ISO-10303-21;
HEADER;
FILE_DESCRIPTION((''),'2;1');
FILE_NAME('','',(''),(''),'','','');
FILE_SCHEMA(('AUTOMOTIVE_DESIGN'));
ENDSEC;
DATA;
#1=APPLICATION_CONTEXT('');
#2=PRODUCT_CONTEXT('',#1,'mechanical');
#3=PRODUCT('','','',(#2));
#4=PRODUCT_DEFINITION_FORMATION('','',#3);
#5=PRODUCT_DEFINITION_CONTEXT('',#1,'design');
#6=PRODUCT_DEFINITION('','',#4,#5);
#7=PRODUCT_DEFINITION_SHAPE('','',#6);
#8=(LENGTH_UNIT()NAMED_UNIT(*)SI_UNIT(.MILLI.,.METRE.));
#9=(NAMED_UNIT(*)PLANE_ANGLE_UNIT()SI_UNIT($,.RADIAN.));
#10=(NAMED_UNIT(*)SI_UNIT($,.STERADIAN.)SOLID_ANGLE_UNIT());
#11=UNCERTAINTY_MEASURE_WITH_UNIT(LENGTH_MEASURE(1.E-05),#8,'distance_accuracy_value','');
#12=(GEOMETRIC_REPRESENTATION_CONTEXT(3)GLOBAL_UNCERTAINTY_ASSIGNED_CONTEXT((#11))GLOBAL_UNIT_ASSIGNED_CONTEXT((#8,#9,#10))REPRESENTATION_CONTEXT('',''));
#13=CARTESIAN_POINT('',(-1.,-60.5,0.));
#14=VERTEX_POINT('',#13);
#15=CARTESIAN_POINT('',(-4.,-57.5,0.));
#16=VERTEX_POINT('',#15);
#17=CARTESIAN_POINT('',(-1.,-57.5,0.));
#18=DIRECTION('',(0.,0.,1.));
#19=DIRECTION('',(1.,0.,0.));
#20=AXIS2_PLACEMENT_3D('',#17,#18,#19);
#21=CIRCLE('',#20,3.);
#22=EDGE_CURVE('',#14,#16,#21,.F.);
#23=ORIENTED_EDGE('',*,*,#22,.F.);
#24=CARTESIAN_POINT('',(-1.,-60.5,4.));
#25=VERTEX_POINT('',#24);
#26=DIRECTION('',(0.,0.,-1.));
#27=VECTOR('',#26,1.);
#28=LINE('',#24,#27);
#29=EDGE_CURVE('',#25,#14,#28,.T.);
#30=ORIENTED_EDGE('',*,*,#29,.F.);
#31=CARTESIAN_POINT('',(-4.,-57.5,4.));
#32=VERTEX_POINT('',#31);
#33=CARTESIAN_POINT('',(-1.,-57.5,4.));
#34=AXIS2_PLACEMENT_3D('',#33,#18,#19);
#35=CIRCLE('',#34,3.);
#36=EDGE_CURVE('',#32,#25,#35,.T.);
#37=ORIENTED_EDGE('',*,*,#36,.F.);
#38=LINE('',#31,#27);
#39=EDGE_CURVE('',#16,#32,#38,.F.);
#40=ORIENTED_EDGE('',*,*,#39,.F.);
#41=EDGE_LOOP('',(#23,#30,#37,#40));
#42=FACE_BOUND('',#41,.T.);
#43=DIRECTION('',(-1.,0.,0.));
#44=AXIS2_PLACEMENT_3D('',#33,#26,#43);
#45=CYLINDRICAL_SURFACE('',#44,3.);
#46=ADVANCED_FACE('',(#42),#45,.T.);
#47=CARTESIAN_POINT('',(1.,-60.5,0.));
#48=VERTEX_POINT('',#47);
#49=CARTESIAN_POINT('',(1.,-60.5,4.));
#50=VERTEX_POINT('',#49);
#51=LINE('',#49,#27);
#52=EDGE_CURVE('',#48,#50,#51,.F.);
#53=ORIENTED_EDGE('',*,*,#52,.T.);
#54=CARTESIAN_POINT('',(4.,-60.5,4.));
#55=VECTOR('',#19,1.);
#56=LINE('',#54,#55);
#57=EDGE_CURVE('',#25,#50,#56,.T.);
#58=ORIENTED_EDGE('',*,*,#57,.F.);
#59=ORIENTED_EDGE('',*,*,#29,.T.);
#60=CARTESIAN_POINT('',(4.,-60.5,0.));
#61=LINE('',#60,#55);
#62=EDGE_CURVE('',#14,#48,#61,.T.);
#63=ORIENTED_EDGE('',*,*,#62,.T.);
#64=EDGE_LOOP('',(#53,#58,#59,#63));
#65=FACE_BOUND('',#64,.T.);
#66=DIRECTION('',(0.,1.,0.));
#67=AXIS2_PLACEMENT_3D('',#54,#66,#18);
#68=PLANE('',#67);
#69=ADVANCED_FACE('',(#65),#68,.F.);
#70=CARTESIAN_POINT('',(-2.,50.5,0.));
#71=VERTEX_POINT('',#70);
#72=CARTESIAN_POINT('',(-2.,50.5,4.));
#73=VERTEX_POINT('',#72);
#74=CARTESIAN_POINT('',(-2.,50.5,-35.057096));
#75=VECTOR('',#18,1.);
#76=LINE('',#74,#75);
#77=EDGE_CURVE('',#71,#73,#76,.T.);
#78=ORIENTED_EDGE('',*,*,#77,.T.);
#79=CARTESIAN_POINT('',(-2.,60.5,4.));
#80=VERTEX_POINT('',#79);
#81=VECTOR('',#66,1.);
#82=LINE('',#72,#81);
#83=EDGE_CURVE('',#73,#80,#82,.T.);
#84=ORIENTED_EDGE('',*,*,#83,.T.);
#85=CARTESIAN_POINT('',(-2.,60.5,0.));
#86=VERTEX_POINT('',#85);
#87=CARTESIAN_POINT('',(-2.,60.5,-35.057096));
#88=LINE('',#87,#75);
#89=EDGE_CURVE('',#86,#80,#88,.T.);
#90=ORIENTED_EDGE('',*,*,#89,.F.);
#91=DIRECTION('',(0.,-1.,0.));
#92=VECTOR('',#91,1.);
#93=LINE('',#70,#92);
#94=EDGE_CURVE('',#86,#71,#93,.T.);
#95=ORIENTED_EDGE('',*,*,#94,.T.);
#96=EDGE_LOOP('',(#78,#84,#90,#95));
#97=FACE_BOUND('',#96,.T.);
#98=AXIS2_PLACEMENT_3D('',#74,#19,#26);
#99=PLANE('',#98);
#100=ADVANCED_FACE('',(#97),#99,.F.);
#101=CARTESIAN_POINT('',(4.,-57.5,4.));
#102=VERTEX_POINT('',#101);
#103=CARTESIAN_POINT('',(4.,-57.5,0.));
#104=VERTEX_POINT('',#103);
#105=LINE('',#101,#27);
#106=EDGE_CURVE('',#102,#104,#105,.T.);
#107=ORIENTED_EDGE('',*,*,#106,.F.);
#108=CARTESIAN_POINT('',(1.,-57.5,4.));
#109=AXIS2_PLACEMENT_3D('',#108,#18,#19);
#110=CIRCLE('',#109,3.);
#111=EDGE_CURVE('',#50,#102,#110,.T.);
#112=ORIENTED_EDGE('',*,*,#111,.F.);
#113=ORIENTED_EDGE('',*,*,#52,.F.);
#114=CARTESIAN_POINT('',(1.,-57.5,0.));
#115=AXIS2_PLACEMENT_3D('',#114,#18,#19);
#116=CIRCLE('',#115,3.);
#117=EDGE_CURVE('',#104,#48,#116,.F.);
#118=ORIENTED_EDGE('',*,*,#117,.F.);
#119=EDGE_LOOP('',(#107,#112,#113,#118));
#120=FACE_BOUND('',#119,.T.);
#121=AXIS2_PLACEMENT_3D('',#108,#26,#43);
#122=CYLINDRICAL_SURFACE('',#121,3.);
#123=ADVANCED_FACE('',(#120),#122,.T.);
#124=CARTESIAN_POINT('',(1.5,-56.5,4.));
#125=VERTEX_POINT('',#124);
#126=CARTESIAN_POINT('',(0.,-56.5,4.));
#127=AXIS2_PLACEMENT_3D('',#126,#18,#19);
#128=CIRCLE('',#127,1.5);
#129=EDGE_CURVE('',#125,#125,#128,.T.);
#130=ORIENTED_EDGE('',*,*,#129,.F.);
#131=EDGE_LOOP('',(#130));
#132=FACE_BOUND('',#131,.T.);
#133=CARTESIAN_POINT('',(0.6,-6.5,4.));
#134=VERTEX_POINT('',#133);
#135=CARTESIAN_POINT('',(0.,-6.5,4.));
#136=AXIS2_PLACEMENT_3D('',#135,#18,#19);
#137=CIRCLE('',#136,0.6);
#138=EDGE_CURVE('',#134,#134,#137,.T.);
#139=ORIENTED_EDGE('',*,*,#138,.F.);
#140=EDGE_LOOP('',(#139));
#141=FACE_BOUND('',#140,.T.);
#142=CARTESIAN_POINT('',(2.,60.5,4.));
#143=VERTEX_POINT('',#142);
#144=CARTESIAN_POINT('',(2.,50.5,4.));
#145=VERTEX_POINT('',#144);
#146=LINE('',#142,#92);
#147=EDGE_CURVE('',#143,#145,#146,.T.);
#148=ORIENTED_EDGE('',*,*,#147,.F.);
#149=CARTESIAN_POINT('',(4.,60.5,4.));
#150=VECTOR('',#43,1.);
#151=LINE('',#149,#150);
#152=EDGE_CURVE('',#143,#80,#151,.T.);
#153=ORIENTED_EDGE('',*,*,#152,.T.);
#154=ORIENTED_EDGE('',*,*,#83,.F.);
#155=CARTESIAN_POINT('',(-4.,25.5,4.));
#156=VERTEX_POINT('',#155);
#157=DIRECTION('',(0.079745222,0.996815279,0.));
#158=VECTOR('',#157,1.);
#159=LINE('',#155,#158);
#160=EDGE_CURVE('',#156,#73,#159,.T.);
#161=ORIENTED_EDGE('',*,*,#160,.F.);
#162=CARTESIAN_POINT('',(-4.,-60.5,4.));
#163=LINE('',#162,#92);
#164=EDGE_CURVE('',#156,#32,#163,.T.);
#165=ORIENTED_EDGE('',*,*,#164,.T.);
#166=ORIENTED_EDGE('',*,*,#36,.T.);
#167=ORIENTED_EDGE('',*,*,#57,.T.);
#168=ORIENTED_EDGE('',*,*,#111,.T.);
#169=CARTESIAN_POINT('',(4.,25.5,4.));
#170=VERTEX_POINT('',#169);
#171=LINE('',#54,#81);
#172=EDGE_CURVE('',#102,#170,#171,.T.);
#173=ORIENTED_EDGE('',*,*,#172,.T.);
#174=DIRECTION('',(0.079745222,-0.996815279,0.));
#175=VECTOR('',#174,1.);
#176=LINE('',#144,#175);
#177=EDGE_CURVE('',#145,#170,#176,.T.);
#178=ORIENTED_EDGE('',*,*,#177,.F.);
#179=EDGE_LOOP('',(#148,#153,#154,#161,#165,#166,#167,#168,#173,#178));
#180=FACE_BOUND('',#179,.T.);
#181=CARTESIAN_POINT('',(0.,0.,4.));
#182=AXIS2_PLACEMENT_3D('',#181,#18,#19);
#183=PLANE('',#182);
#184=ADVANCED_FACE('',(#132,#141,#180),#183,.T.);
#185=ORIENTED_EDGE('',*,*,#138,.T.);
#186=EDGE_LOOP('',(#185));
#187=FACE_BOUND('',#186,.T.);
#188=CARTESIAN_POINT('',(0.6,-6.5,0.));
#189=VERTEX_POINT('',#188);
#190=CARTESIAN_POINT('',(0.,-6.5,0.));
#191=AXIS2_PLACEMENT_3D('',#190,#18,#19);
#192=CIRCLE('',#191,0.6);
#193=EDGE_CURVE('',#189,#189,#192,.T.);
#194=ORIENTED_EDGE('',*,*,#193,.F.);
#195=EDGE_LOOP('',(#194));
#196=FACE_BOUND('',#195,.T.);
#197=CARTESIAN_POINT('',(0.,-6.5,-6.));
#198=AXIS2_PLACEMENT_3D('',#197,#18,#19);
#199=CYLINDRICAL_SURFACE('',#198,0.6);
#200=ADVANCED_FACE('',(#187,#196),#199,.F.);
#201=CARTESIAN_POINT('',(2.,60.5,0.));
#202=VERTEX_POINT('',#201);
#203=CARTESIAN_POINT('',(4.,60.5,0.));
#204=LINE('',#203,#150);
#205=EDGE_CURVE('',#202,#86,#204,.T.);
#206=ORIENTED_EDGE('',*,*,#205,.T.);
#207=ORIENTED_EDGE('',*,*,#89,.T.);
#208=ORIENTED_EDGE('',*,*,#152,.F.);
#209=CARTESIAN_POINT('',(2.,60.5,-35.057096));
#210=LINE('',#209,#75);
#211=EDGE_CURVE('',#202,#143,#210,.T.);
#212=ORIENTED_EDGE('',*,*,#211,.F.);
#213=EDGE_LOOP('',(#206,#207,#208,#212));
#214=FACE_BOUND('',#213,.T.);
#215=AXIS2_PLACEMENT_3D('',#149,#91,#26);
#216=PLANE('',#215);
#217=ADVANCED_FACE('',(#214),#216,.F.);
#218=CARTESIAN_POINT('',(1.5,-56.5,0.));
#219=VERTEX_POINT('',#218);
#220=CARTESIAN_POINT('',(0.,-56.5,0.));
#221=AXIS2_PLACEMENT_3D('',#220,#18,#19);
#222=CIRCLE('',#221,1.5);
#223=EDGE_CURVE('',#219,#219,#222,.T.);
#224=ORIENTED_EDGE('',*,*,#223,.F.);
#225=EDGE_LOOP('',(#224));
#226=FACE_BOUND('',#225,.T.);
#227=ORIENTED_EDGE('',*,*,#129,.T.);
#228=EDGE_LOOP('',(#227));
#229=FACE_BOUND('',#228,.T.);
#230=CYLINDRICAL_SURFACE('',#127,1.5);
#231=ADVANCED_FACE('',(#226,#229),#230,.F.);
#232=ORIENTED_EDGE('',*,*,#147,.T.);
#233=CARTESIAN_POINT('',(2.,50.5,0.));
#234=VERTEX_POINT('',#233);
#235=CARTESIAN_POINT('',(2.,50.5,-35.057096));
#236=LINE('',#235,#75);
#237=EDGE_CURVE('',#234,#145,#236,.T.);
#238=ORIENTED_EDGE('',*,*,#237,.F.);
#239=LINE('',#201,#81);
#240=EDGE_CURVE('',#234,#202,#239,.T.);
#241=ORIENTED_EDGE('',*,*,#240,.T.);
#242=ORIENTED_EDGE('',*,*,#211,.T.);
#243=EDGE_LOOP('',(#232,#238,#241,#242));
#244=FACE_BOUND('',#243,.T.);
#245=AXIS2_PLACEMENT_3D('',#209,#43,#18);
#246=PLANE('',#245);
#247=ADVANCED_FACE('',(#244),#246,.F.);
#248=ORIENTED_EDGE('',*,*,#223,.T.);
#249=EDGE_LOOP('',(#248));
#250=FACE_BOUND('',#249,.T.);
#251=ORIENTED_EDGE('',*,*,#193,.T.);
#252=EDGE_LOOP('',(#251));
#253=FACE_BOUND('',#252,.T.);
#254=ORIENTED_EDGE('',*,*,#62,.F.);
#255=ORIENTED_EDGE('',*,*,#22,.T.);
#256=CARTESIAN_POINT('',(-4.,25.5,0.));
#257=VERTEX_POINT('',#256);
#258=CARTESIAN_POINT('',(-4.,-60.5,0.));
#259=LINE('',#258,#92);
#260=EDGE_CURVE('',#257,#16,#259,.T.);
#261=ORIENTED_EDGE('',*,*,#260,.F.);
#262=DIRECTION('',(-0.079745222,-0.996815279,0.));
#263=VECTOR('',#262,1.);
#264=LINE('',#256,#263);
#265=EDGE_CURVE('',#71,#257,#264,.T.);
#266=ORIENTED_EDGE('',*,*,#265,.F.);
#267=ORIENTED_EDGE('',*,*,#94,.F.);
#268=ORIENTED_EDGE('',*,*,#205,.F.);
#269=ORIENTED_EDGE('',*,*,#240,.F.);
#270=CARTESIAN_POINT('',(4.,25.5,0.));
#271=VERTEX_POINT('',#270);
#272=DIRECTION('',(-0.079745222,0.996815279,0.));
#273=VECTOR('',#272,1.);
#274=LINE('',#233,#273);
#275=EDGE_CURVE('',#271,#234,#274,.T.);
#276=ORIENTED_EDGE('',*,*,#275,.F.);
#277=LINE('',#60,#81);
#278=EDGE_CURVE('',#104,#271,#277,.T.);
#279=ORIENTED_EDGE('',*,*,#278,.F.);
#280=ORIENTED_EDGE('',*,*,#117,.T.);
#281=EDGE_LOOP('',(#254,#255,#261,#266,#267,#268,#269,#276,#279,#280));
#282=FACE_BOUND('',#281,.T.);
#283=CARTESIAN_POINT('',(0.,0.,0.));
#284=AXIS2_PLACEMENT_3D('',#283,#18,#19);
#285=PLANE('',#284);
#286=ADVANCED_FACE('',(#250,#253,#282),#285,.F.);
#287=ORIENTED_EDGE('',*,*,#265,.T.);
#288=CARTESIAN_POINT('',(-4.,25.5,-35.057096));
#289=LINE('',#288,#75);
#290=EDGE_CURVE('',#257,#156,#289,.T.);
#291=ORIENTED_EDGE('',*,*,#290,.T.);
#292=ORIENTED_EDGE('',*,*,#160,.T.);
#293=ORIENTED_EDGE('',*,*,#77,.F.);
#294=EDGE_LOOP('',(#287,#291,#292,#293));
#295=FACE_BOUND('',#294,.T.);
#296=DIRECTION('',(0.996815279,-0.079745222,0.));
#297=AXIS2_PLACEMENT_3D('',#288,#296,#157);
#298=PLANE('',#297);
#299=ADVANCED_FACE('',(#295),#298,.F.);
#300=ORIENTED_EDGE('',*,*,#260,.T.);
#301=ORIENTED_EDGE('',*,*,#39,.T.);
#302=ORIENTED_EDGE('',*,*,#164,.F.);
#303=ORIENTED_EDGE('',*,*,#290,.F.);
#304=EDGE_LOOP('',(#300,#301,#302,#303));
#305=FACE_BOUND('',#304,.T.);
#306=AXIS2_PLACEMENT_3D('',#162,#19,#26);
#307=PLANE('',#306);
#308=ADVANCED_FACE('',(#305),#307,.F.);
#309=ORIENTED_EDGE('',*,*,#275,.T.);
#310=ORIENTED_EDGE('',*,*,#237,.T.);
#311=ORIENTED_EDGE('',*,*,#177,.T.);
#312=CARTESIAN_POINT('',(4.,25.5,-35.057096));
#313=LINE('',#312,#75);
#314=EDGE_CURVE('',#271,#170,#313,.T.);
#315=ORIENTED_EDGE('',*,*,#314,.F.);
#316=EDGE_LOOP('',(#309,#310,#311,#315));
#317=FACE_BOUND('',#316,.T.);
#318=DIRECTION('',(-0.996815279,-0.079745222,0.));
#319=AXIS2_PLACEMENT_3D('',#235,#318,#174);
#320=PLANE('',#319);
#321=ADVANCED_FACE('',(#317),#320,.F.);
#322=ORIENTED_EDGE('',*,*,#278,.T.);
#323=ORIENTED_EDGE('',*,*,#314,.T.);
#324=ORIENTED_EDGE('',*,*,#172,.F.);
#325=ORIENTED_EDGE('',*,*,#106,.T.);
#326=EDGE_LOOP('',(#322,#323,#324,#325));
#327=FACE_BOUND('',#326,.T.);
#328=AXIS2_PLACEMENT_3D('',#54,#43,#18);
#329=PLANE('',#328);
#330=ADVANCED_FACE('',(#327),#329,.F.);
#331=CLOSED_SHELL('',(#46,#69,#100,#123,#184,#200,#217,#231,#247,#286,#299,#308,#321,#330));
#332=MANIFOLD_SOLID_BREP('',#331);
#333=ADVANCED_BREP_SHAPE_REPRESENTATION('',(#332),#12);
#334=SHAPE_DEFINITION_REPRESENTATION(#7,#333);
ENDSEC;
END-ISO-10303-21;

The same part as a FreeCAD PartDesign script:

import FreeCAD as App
import Part
import Sketcher

V = App.Vector
Q = App.Units.Quantity


def edges_at(feature, points):
    """Names of the edges that pass closest to the given points."""
    edges = feature.Shape.Edges
    near = lambda p: min(range(len(edges)), key=lambda i: edges[i].distToShape(Part.Vertex(*p))[0])
    return sorted({f"Edge{near(p) + 1}" for p in points})

doc = App.newDocument("Part")
body = doc.addObject("PartDesign::Body", "Body")

sketch1 = body.newObject("Sketcher::SketchObject", "Sketch")
sketch1.AttachmentSupport = (doc.getObject("XY_Plane"), [""])
sketch1.MapMode = "FlatFace"
sketch1.addGeometry([
    Part.LineSegment(V(-4, 60, 0), V(-4, -60, 0)),
    Part.LineSegment(V(-4, -60, 0), V(4, -60, 0)),
    Part.LineSegment(V(4, -60, 0), V(4, 60, 0)),
    Part.LineSegment(V(4, 60, 0), V(-4, 60, 0)),
], False)
sketch1.addConstraint([
    Sketcher.Constraint("Coincident", 0, 2, 1, 1),
    Sketcher.Constraint("Coincident", 1, 2, 2, 1),
    Sketcher.Constraint("Coincident", 2, 2, 3, 1),
    Sketcher.Constraint("Coincident", 3, 2, 0, 1),
    Sketcher.Constraint("Vertical", 0),
    Sketcher.Constraint("Horizontal", 1),
    Sketcher.Constraint("Vertical", 2),
    Sketcher.Constraint("Horizontal", 3),
    Sketcher.Constraint("Symmetric", 0, 2, 2, 2, -1, 1),
    Sketcher.Constraint("DistanceX", 1, 1, 1, 2, Q("8 mm")),
    Sketcher.Constraint("DistanceY", 0, 2, 0, 1, Q("121 mm")),
])
pad1 = body.newObject("PartDesign::Pad", "Pad")
pad1.Profile = sketch1
pad1.Length = 4
doc.recompute()

fillet = body.newObject("PartDesign::Fillet", "Fillet")
fillet.Base = (pad1, edges_at(pad1, [(4, -60.5, 2), (-4, -60.5, 2)]))
fillet.Radius = 3

sketch2 = body.newObject("Sketcher::SketchObject", "Sketch001")
sketch2.AttachmentSupport = (doc.getObject("XY_Plane"), [""])
sketch2.MapMode = "FlatFace"
sketch2.AttachmentOffset = App.Placement(V(0, 0, 4), App.Rotation())
sketch2.addGeometry([
    Part.LineSegment(V(-4, 25.5, 0), V(-2, 50.5, 0)),
    Part.LineSegment(V(-2, 50.5, 0), V(-2, 60.5, 0)),
    Part.LineSegment(V(-2, 60.5, 0), V(-4, 60.5, 0)),
    Part.LineSegment(V(-4, 60.5, 0), V(-4, 25.5, 0)),
    Part.LineSegment(V(2, 60.5, 0), V(2, 50.5, 0)),
    Part.LineSegment(V(2, 50.5, 0), V(4, 25.5, 0)),
    Part.LineSegment(V(4, 25.5, 0), V(4, 60.5, 0)),
    Part.LineSegment(V(4, 60.5, 0), V(2, 60.5, 0)),
], False)
sketch2.addConstraint([
    Sketcher.Constraint("Coincident", 0, 2, 1, 1),
    Sketcher.Constraint("Coincident", 1, 2, 2, 1),
    Sketcher.Constraint("Coincident", 2, 2, 3, 1),
    Sketcher.Constraint("Coincident", 3, 2, 0, 1),
    Sketcher.Constraint("Coincident", 4, 2, 5, 1),
    Sketcher.Constraint("Coincident", 5, 2, 6, 1),
    Sketcher.Constraint("Coincident", 6, 2, 7, 1),
    Sketcher.Constraint("Coincident", 7, 2, 4, 1),
    Sketcher.Constraint("Vertical", 1),
    Sketcher.Constraint("Horizontal", 2),
    Sketcher.Constraint("Vertical", 3),
    Sketcher.Constraint("Vertical", 4),
    Sketcher.Constraint("Vertical", 6),
    Sketcher.Constraint("Horizontal", 7),
    Sketcher.Constraint("Symmetric", 0, 2, 4, 2, -2),
    Sketcher.Constraint("Symmetric", 3, 2, 5, 2, -2),
    Sketcher.Constraint("Horizontal", 2, 2, 6, 2),
    Sketcher.Constraint("DistanceX", 2, 2, 2, 1, Q("2 mm")),
    Sketcher.Constraint("DistanceY", 1, 1, 1, 2, Q("10 mm")),
    Sketcher.Constraint("DistanceY", 3, 2, 3, 1, Q("35 mm")),
    Sketcher.Constraint("DistanceX", 0, 2, -1, 1, Q("2 mm")),
    Sketcher.Constraint("DistanceY", -1, 1, 0, 2, Q("50.5 mm")),
])
pocket1 = body.newObject("PartDesign::Pocket", "Pocket")
pocket1.Profile = sketch2
pocket1.Length = 4

sketch3 = body.newObject("Sketcher::SketchObject", "Sketch002")
sketch3.AttachmentSupport = (doc.getObject("XY_Plane"), [""])
sketch3.MapMode = "FlatFace"
sketch3.AttachmentOffset = App.Placement(V(0, 0, 4), App.Rotation())
sketch3.addGeometry(Part.Circle(V(0, -56.5, 0), V(0, 0, 1), 1.5), False)
sketch3.addConstraint([
    Sketcher.Constraint("PointOnObject", 0, 3, -2),
    Sketcher.Constraint("Diameter", 0, Q("3 mm")),
    Sketcher.Constraint("DistanceY", 0, 3, -1, 1, Q("56.5 mm")),
])
doc.recompute()
hole = body.newObject("PartDesign::Hole", "Hole")
hole.Profile = sketch3
hole.ThreadType = "None"
hole.Diameter = 3
hole.DepthType = "ThroughAll"

sketch4 = body.newObject("Sketcher::SketchObject", "Sketch003")
sketch4.AttachmentSupport = (doc.getObject("XY_Plane"), [""])
sketch4.MapMode = "FlatFace"
sketch4.AttachmentOffset = App.Placement(V(0, 0, 4), App.Rotation())
sketch4.addGeometry(Part.Circle(V(0, -6.5, 0), V(0, 0, 1), 0.6), False)
sketch4.addConstraint([
    Sketcher.Constraint("PointOnObject", 0, 3, -2),
    Sketcher.Constraint("Diameter", 0, Q("1.2 mm")),
    Sketcher.Constraint("DistanceY", 0, 3, -1, 1, Q("6.5 mm")),
])
pocket2 = body.newObject("PartDesign::Pocket", "Pocket001")
pocket2.Profile = sketch4
pocket2.Length = 10

doc.recompute()
